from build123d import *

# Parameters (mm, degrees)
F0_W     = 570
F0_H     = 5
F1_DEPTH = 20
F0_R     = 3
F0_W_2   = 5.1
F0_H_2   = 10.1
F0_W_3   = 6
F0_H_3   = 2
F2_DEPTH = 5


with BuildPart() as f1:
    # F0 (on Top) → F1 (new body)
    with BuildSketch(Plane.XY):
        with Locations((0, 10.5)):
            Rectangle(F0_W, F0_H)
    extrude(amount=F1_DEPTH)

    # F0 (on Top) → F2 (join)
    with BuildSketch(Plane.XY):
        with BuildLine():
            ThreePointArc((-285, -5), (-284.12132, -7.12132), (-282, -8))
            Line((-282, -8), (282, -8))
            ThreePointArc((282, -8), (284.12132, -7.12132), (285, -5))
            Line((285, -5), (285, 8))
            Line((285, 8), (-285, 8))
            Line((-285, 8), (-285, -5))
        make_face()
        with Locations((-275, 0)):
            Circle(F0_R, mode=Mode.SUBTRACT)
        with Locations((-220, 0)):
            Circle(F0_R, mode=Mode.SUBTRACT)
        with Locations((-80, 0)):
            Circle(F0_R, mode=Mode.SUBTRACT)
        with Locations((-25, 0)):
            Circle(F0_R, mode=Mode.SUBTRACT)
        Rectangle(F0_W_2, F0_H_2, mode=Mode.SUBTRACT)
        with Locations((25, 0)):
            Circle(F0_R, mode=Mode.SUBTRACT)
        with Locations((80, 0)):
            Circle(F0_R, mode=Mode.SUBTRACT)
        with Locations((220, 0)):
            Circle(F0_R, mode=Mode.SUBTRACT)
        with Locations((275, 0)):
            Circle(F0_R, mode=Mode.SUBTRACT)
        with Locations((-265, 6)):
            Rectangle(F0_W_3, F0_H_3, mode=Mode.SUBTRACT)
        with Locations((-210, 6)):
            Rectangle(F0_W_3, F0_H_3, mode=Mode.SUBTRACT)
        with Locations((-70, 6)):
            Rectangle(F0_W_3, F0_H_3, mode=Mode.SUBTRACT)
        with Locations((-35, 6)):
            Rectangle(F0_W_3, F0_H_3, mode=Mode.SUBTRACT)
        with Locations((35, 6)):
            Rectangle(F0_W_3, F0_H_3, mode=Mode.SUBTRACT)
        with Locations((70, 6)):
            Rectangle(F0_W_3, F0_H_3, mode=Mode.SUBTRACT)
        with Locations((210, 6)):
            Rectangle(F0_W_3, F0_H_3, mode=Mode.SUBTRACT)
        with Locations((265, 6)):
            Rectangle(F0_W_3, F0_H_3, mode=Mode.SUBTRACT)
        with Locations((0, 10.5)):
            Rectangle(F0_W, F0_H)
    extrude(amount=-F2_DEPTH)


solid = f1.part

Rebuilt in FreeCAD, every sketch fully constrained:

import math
import FreeCAD as App
import Part
import Sketcher

doc = App.newDocument("Part")
params = doc.addObject("Spreadsheet::Sheet", "Params")
for row, (alias, value) in enumerate([
    ("sketch1_width", "570 mm"),
    ("sketch1_height", "5 mm"),
    ("pad1_length", "20 mm"),
    ("sketch2_diameter", "6 mm"),
    ("sketch2_width", "564 mm"),
    ("sketch2_width2", "6 mm"),
    ("sketch2_height", "18 mm"),
    ("sketch2_height2", "2 mm"),
    ("pad2_length", "5 mm"),
], start=1):
    params.set(f"A{row}", alias)
    params.set(f"B{row}", "=" + value)
    params.setAlias(f"B{row}", alias)

body = doc.addObject("PartDesign::Body", "Body")

# Sketch on XY plane
sketch1 = body.newObject("Sketcher::SketchObject", "Sketch")
sketch1.AttachmentSupport = (doc.getObject("XY_Plane"), [""])
sketch1.MapMode = "FlatFace"
sketch1.addGeometry([
    Part.LineSegment(App.Vector(-285, 13, 0), App.Vector(-285, 8, 0)),
    Part.LineSegment(App.Vector(-285, 8, 0), App.Vector(285, 8, 0)),
    Part.LineSegment(App.Vector(285, 8, 0), App.Vector(285, 13, 0)),
    Part.LineSegment(App.Vector(285, 13, 0), App.Vector(-285, 13, 0)),
], False)
sketch1.addConstraint([
    Sketcher.Constraint("Coincident", 0, 2, 1, 1),
    Sketcher.Constraint("Coincident", 1, 2, 2, 1),
    Sketcher.Constraint("Coincident", 2, 2, 3, 1),
    Sketcher.Constraint("Coincident", 3, 2, 0, 1),
    Sketcher.Constraint("Vertical", 0),
    Sketcher.Constraint("Horizontal", 1),
    Sketcher.Constraint("Vertical", 2),
    Sketcher.Constraint("Horizontal", 3),
    Sketcher.Constraint("DistanceX", 1, 1, 1, 2, 570.0),
    Sketcher.Constraint("DistanceY", 0, 2, 0, 1, 5.0),
    Sketcher.Constraint("DistanceX", 0, 2, -1, 1, 285.0),
    Sketcher.Constraint("DistanceY", -1, 1, 0, 2, 8.0),
])
sketch1.setExpression("Constraints[8]", "Params.sketch1_width")
sketch1.setExpression("Constraints[9]", "Params.sketch1_height")
pad1 = body.newObject("PartDesign::Pad", "Pad")
pad1.Profile = sketch1
pad1.setExpression("Length", "Params.pad1_length")

# Sketch on XY plane
sketch2 = body.newObject("Sketcher::SketchObject", "Sketch001")
sketch2.AttachmentSupport = (doc.getObject("XY_Plane"), [""])
sketch2.MapMode = "FlatFace"
sketch2.addGeometry([
    Part.ArcOfCircle(Part.Circle(App.Vector(-281.999999, -4.999999, 0), App.Vector(0, 0, 1), 3.000001), math.radians(-179.999978), math.radians(-90.000022)),  # 0
    Part.LineSegment(App.Vector(-282, -8, 0), App.Vector(282, -8, 0)),  # 1
    Part.ArcOfCircle(Part.Circle(App.Vector(281.999999, -4.999999, 0), App.Vector(0, 0, 1), 3.000001), math.radians(-89.999978), math.radians(-0.000022)),  # 2
    Part.LineSegment(App.Vector(285, -5, 0), App.Vector(285, 13, 0)),  # 3
    Part.LineSegment(App.Vector(285, 13, 0), App.Vector(-285, 13, 0)),  # 4
    Part.LineSegment(App.Vector(-285, 13, 0), App.Vector(-285, -5, 0)),  # 5
    Part.Circle(App.Vector(-275, 0, 0), App.Vector(0, 0, 1), 3),  # 6
    Part.Circle(App.Vector(-220, 0, 0), App.Vector(0, 0, 1), 3),  # 7
    Part.Circle(App.Vector(-80, 0, 0), App.Vector(0, 0, 1), 3),  # 8
    Part.Circle(App.Vector(-25, 0, 0), App.Vector(0, 0, 1), 3),  # 9
    Part.LineSegment(App.Vector(2.55, -5.05, 0), App.Vector(-2.55, -5.05, 0)),  # 10
    Part.LineSegment(App.Vector(-2.55, -5.05, 0), App.Vector(-2.55, 5.05, 0)),  # 11
    Part.LineSegment(App.Vector(-2.55, 5.05, 0), App.Vector(2.55, 5.05, 0)),  # 12
    Part.LineSegment(App.Vector(2.55, 5.05, 0), App.Vector(2.55, -5.05, 0)),  # 13
    Part.Circle(App.Vector(25, 0, 0), App.Vector(0, 0, 1), 3),  # 14
    Part.Circle(App.Vector(80, 0, 0), App.Vector(0, 0, 1), 3),  # 15
    Part.Circle(App.Vector(220, 0, 0), App.Vector(0, 0, 1), 3),  # 16
    Part.Circle(App.Vector(275, 0, 0), App.Vector(0, 0, 1), 3),  # 17
    Part.LineSegment(App.Vector(-262, 5, 0), App.Vector(-268, 5, 0)),  # 18
    Part.LineSegment(App.Vector(-268, 5, 0), App.Vector(-268, 7, 0)),  # 19
    Part.LineSegment(App.Vector(-268, 7, 0), App.Vector(-262, 7, 0)),  # 20
    Part.LineSegment(App.Vector(-262, 7, 0), App.Vector(-262, 5, 0)),  # 21
    Part.LineSegment(App.Vector(-207, 5, 0), App.Vector(-213, 5, 0)),  # 22
    Part.LineSegment(App.Vector(-213, 5, 0), App.Vector(-213, 7, 0)),  # 23
    Part.LineSegment(App.Vector(-213, 7, 0), App.Vector(-207, 7, 0)),  # 24
    Part.LineSegment(App.Vector(-207, 7, 0), App.Vector(-207, 5, 0)),  # 25
    Part.LineSegment(App.Vector(-67, 5, 0), App.Vector(-73, 5, 0)),  # 26
    Part.LineSegment(App.Vector(-73, 5, 0), App.Vector(-73, 7, 0)),  # 27
    Part.LineSegment(App.Vector(-73, 7, 0), App.Vector(-67, 7, 0)),  # 28
    Part.LineSegment(App.Vector(-67, 7, 0), App.Vector(-67, 5, 0)),  # 29
    Part.LineSegment(App.Vector(-32, 5, 0), App.Vector(-38, 5, 0)),  # 30
    Part.LineSegment(App.Vector(-38, 5, 0), App.Vector(-38, 7, 0)),  # 31
    Part.LineSegment(App.Vector(-38, 7, 0), App.Vector(-32, 7, 0)),  # 32
    Part.LineSegment(App.Vector(-32, 7, 0), App.Vector(-32, 5, 0)),  # 33
    Part.LineSegment(App.Vector(38, 5, 0), App.Vector(32, 5, 0)),  # 34
    Part.LineSegment(App.Vector(32, 5, 0), App.Vector(32, 7, 0)),  # 35
    Part.LineSegment(App.Vector(32, 7, 0), App.Vector(38, 7, 0)),  # 36
    Part.LineSegment(App.Vector(38, 7, 0), App.Vector(38, 5, 0)),  # 37
    Part.LineSegment(App.Vector(73, 5, 0), App.Vector(67, 5, 0)),  # 38
    Part.LineSegment(App.Vector(67, 5, 0), App.Vector(67, 7, 0)),  # 39
    Part.LineSegment(App.Vector(67, 7, 0), App.Vector(73, 7, 0)),  # 40
    Part.LineSegment(App.Vector(73, 7, 0), App.Vector(73, 5, 0)),  # 41
    Part.LineSegment(App.Vector(213, 5, 0), App.Vector(207, 5, 0)),  # 42
    Part.LineSegment(App.Vector(207, 5, 0), App.Vector(207, 7, 0)),  # 43
    Part.LineSegment(App.Vector(207, 7, 0), App.Vector(213, 7, 0)),  # 44
    Part.LineSegment(App.Vector(213, 7, 0), App.Vector(213, 5, 0)),  # 45
    Part.LineSegment(App.Vector(268, 5, 0), App.Vector(262, 5, 0)),  # 46
    Part.LineSegment(App.Vector(262, 5, 0), App.Vector(262, 7, 0)),  # 47
    Part.LineSegment(App.Vector(262, 7, 0), App.Vector(268, 7, 0)),  # 48
    Part.LineSegment(App.Vector(268, 7, 0), App.Vector(268, 5, 0)),  # 49
], False)
sketch2.addConstraint([
    Sketcher.Constraint("Tangent", 0, 2, 1, 1),
    Sketcher.Constraint("Tangent", 1, 2, 2, 1),
    Sketcher.Constraint("Tangent", 2, 2, 3, 1),
    Sketcher.Constraint("Coincident", 3, 2, 4, 1),
    Sketcher.Constraint("Coincident", 4, 2, 5, 1),
    Sketcher.Constraint("Tangent", 5, 2, 0, 1),
    Sketcher.Constraint("Coincident", 10, 2, 11, 1),
    Sketcher.Constraint("Coincident", 11, 2, 12, 1),
    Sketcher.Constraint("Coincident", 12, 2, 13, 1),
    Sketcher.Constraint("Coincident", 13, 2, 10, 1),
    Sketcher.Constraint("Coincident", 18, 2, 19, 1),
    Sketcher.Constraint("Coincident", 19, 2, 20, 1),
    Sketcher.Constraint("Coincident", 20, 2, 21, 1),
    Sketcher.Constraint("Coincident", 21, 2, 18, 1),
    Sketcher.Constraint("Coincident", 22, 2, 23, 1),
    Sketcher.Constraint("Coincident", 23, 2, 24, 1),
    Sketcher.Constraint("Coincident", 24, 2, 25, 1),
    Sketcher.Constraint("Coincident", 25, 2, 22, 1),
    Sketcher.Constraint("Coincident", 26, 2, 27, 1),
    Sketcher.Constraint("Coincident", 27, 2, 28, 1),
    Sketcher.Constraint("Coincident", 28, 2, 29, 1),
    Sketcher.Constraint("Coincident", 29, 2, 26, 1),
    Sketcher.Constraint("Coincident", 30, 2, 31, 1),
    Sketcher.Constraint("Coincident", 31, 2, 32, 1),
    Sketcher.Constraint("Coincident", 32, 2, 33, 1),
    Sketcher.Constraint("Coincident", 33, 2, 30, 1),
    Sketcher.Constraint("Coincident", 34, 2, 35, 1),
    Sketcher.Constraint("Coincident", 35, 2, 36, 1),
    Sketcher.Constraint("Coincident", 36, 2, 37, 1),
    Sketcher.Constraint("Coincident", 37, 2, 34, 1),
    Sketcher.Constraint("Coincident", 38, 2, 39, 1),
    Sketcher.Constraint("Coincident", 39, 2, 40, 1),
    Sketcher.Constraint("Coincident", 40, 2, 41, 1),
    Sketcher.Constraint("Coincident", 41, 2, 38, 1),
    Sketcher.Constraint("Coincident", 42, 2, 43, 1),
    Sketcher.Constraint("Coincident", 43, 2, 44, 1),
    Sketcher.Constraint("Coincident", 44, 2, 45, 1),
    Sketcher.Constraint("Coincident", 45, 2, 42, 1),
    Sketcher.Constraint("Coincident", 46, 2, 47, 1),
    Sketcher.Constraint("Coincident", 47, 2, 48, 1),
    Sketcher.Constraint("Coincident", 48, 2, 49, 1),
    Sketcher.Constraint("Coincident", 49, 2, 46, 1),
    Sketcher.Constraint("Horizontal", 1),
    Sketcher.Constraint("Vertical", 3),
    Sketcher.Constraint("Horizontal", 4),
    Sketcher.Constraint("Vertical", 5),
    Sketcher.Constraint("Horizontal", 10),
    Sketcher.Constraint("Vertical", 11),
    Sketcher.Constraint("Horizontal", 12),
    Sketcher.Constraint("Vertical", 13),
    Sketcher.Constraint("Horizontal", 18),
    Sketcher.Constraint("Vertical", 19),
    Sketcher.Constraint("Horizontal", 20),
    Sketcher.Constraint("Vertical", 21),
    Sketcher.Constraint("Horizontal", 22),
    Sketcher.Constraint("Vertical", 23),
    Sketcher.Constraint("Horizontal", 24),
    Sketcher.Constraint("Vertical", 25),
    Sketcher.Constraint("Horizontal", 26),
    Sketcher.Constraint("Vertical", 27),
    Sketcher.Constraint("Horizontal", 28),
    Sketcher.Constraint("Vertical", 29),
    Sketcher.Constraint("Horizontal", 30),
    Sketcher.Constraint("Vertical", 31),
    Sketcher.Constraint("Horizontal", 32),
    Sketcher.Constraint("Vertical", 33),
    Sketcher.Constraint("Horizontal", 34),
    Sketcher.Constraint("Vertical", 35),
    Sketcher.Constraint("Horizontal", 36),
    Sketcher.Constraint("Vertical", 37),
    Sketcher.Constraint("Horizontal", 38),
    Sketcher.Constraint("Vertical", 39),
    Sketcher.Constraint("Horizontal", 40),
    Sketcher.Constraint("Vertical", 41),
    Sketcher.Constraint("Horizontal", 42),
    Sketcher.Constraint("Vertical", 43),
    Sketcher.Constraint("Horizontal", 44),
    Sketcher.Constraint("Vertical", 45),
    Sketcher.Constraint("Horizontal", 46),
    Sketcher.Constraint("Vertical", 47),
    Sketcher.Constraint("Horizontal", 48),
    Sketcher.Constraint("Vertical", 49),
    Sketcher.Constraint("Equal", 0, 2),
    Sketcher.Constraint("Equal", 2, 6),
    Sketcher.Constraint("Equal", 6, 7),
    Sketcher.Constraint("Equal", 7, 8),
    Sketcher.Constraint("Equal", 8, 9),
    Sketcher.Constraint("Equal", 9, 14),
    Sketcher.Constraint("Equal", 14, 15),
    Sketcher.Constraint("Equal", 15, 16),
    Sketcher.Constraint("Equal", 16, 17),
    Sketcher.Constraint("Symmetric", 9, 3, 14, 3, -1, 1),
    Sketcher.Constraint("Symmetric", 8, 3, 15, 3, -1, 1),
    Sketcher.Constraint("Symmetric", 7, 3, 16, 3, -1, 1),
    Sketcher.Constraint("Symmetric", 6, 3, 17, 3, -1, 1),
    Sketcher.Constraint("Symmetric", 10, 2, 12, 2, -1, 1),
    Sketcher.Constraint("Symmetric", 33, 2, 34, 2, -2),
    Sketcher.Constraint("Symmetric", 31, 2, 36, 2, -2),
    Sketcher.Constraint("Symmetric", 29, 2, 38, 2, -2),
    Sketcher.Constraint("Symmetric", 27, 2, 40, 2, -2),
    Sketcher.Constraint("Symmetric", 25, 2, 42, 2, -2),
    Sketcher.Constraint("Symmetric", 23, 2, 44, 2, -2),
    Sketcher.Constraint("Symmetric", 21, 2, 46, 2, -2),
    Sketcher.Constraint("Symmetric", 19, 2, 48, 2, -2),
    Sketcher.Constraint("PointOnObject", 6, 3, -1),
    Sketcher.Constraint("PointOnObject", 7, 3, -1),
    Sketcher.Constraint("PointOnObject", 8, 3, -1),
    Sketcher.Constraint("PointOnObject", 9, 3, -1),
    Sketcher.Constraint("Horizontal", 21, 2, 22, 2),
    Sketcher.Constraint("Horizontal", 20, 2, 23, 2),
    Sketcher.Constraint("Horizontal", 25, 2, 26, 2),
    Sketcher.Constraint("Horizontal", 24, 2, 27, 2),
    Sketcher.Constraint("Horizontal", 29, 2, 30, 2),
    Sketcher.Constraint("Horizontal", 28, 2, 31, 2),
    Sketcher.Constraint("Equal", 20, 22),
    Sketcher.Constraint("Equal", 24, 26),
    Sketcher.Constraint("Equal", 28, 30),
    Sketcher.Constraint("Diameter", 6, 6.0),
    Sketcher.Constraint("DistanceX", 1, 1, 1, 2, 564.0),
    Sketcher.Constraint("DistanceX", 18, 2, 18, 1, 6.0),
    Sketcher.Constraint("DistanceY", 3, 1, 3, 2, 18.0),
    Sketcher.Constraint("DistanceY", 19, 1, 19, 2, 2.0),
    Sketcher.Constraint("DistanceX", 10, 2, 10, 1, 5.1),
    Sketcher.Constraint("DistanceY", 11, 1, 11, 2, 10.1),
    Sketcher.Constraint("DistanceX", 0, 3, -1, 1, 281.999999),
    Sketcher.Constraint("DistanceY", 0, 3, -1, 1, 4.999999),
    Sketcher.Constraint("DistanceX", 6, 3, -1, 1, 275.0),
    Sketcher.Constraint("DistanceX", 7, 3, -1, 1, 220.0),
    Sketcher.Constraint("DistanceX", 8, 3, -1, 1, 80.0),
    Sketcher.Constraint("DistanceX", 9, 3, -1, 1, 25.0),
    Sketcher.Constraint("DistanceX", 18, 2, -1, 1, 268.0),
    Sketcher.Constraint("DistanceY", -1, 1, 18, 2, 5.0),
    Sketcher.Constraint("DistanceX", 22, 2, -1, 1, 213.0),
    Sketcher.Constraint("DistanceX", 26, 2, -1, 1, 73.0),
    Sketcher.Constraint("DistanceX", 30, 2, -1, 1, 38.0),
])
sketch2.setExpression("Constraints[117]", "Params.sketch2_diameter")
sketch2.setExpression("Constraints[118]", "Params.sketch2_width")
sketch2.setExpression("Constraints[119]", "Params.sketch2_width2")
sketch2.setExpression("Constraints[120]", "Params.sketch2_height")
sketch2.setExpression("Constraints[121]", "Params.sketch2_height2")
pad2 = body.newObject("PartDesign::Pad", "Pad001")
pad2.Profile = sketch2
pad2.setExpression("Length", "Params.pad2_length")
pad2.Reversed = True

doc.recompute()
